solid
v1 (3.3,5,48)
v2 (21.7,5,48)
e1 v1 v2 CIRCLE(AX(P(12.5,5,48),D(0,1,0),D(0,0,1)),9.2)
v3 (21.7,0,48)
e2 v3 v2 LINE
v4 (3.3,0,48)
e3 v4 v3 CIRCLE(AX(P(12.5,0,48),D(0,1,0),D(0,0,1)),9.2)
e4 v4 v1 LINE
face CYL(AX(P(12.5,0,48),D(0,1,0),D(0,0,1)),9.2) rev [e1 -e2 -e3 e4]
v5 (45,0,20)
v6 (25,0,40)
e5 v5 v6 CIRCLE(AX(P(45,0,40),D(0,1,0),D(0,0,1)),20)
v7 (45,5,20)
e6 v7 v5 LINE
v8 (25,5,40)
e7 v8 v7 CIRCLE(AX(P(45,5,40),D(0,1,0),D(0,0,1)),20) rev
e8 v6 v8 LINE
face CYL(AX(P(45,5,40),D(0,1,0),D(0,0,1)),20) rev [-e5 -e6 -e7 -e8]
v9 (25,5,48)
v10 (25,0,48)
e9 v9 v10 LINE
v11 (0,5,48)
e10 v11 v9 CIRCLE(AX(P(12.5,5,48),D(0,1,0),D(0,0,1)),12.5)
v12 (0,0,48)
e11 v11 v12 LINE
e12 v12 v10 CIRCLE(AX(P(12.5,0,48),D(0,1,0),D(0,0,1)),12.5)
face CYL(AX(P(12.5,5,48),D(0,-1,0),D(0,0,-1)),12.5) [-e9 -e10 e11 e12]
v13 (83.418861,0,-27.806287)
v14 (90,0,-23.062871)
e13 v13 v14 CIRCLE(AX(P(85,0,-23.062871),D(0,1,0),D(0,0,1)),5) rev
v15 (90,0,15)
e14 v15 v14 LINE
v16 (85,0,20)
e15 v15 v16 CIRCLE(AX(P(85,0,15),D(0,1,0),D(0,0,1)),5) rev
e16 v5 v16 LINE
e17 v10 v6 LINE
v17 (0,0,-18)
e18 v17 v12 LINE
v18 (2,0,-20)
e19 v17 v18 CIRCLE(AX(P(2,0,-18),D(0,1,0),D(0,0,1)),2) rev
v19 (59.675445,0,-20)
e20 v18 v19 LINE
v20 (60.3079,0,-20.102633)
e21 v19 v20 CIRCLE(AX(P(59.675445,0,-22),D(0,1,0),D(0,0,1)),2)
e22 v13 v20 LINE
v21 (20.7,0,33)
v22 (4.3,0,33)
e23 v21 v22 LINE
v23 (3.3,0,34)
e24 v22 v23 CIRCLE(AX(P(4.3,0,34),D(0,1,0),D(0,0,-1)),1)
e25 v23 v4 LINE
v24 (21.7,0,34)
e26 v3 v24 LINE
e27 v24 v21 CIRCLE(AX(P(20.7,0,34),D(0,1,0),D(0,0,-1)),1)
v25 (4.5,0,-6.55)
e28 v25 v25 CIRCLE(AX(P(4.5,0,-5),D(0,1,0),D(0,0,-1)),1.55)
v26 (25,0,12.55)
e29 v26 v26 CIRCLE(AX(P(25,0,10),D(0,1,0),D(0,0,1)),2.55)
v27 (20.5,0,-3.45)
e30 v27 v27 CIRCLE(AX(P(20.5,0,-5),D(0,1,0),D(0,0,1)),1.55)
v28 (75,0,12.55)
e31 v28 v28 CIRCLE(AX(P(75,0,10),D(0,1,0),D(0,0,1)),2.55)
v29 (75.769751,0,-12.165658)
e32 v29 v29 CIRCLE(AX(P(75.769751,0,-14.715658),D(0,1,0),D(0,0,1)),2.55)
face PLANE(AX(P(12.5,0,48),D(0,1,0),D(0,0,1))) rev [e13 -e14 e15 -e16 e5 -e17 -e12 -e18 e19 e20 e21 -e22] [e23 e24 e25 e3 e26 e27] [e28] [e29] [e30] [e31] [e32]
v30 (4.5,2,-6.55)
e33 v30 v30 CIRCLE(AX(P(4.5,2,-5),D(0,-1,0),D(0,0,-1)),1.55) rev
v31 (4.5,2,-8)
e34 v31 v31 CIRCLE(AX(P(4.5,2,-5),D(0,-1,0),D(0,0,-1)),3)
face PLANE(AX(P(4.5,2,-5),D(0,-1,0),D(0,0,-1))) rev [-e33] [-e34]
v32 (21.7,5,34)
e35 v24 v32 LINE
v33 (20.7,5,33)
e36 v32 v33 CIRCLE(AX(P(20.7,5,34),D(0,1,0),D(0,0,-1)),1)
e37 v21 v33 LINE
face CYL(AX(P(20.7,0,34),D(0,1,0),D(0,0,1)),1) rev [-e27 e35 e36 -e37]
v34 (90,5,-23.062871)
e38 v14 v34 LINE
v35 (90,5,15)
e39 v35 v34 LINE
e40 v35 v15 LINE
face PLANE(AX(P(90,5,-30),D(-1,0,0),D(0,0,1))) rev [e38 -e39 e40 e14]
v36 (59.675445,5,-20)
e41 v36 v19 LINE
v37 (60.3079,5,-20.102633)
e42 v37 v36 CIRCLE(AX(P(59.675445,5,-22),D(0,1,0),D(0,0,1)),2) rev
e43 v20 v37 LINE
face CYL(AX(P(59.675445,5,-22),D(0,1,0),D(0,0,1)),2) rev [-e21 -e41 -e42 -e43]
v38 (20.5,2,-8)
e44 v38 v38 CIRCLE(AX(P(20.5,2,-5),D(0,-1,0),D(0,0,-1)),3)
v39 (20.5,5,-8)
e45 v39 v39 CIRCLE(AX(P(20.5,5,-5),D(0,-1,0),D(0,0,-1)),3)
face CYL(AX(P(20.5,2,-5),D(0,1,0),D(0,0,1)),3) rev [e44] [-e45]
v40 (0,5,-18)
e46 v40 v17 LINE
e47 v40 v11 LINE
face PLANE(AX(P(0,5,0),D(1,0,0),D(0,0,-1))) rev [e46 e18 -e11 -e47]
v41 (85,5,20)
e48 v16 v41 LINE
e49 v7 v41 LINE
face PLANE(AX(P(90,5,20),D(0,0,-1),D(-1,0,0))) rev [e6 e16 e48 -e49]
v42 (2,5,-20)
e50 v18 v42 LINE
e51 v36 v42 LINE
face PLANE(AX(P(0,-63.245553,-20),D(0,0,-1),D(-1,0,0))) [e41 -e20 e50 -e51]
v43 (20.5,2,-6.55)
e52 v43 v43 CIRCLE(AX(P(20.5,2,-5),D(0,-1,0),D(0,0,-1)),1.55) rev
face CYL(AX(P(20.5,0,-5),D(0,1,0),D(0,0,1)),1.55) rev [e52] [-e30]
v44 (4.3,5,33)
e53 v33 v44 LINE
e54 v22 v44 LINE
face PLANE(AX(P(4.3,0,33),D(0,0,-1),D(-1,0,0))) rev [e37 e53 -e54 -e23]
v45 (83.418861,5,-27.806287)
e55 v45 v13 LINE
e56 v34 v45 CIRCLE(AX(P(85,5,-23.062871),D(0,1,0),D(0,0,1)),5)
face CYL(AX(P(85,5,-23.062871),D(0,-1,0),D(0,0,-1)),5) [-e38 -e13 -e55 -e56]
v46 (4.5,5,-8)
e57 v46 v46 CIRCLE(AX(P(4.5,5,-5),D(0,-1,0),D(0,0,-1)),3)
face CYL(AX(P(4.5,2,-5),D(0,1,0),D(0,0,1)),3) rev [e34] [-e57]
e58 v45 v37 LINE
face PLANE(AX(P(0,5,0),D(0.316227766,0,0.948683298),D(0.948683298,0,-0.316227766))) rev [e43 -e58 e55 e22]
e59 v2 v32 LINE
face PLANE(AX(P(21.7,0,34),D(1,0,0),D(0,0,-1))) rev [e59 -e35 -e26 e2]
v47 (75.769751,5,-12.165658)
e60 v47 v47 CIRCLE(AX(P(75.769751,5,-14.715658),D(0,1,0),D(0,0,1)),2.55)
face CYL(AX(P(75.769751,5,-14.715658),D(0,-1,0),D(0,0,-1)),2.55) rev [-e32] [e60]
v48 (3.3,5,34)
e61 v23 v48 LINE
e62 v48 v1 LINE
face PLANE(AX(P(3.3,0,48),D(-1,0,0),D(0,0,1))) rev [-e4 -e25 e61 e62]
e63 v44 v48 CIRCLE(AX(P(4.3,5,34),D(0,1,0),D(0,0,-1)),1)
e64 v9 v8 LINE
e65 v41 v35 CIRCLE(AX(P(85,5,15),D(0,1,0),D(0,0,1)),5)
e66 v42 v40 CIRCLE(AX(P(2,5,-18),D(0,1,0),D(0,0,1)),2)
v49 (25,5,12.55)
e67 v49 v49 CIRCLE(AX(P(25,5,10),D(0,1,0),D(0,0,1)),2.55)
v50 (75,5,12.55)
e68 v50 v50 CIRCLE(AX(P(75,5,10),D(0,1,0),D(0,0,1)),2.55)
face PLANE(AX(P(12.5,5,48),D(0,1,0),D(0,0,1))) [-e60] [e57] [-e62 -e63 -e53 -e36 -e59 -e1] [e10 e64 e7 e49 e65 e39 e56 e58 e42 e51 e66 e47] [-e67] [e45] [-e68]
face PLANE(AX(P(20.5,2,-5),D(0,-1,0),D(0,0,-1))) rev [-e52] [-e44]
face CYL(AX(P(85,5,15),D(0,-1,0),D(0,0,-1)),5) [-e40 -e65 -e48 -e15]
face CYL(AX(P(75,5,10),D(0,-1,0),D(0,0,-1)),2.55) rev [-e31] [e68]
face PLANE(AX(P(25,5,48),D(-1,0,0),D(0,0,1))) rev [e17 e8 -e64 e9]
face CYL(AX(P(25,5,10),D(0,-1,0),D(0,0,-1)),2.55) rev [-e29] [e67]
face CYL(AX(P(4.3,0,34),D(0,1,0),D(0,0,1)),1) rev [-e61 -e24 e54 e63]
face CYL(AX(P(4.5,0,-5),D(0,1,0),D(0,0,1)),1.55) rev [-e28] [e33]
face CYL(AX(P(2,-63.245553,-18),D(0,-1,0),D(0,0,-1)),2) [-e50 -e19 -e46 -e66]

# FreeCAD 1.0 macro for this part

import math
import FreeCAD as App
import Part
import Sketcher

V = App.Vector


def edges_at(feature, points):
    """Names of the edges that pass closest to the given points."""
    edges = feature.Shape.Edges
    near = lambda p: min(range(len(edges)), key=lambda i: edges[i].distToShape(Part.Vertex(*p))[0])
    return sorted({f"Edge{near(p) + 1}" for p in points})


def add_polygon(sketch, points):
    """Adds a closed chain of lines whose ends are joined by coincident constraints."""
    first, n = sketch.GeometryCount, len(points)
    for a, b in zip(points, points[1:] + points[:1]):
        sketch.addGeometry(Part.LineSegment(App.Vector(*a, 0), App.Vector(*b, 0)), False)
    for i in range(n):
        sketch.addConstraint(Sketcher.Constraint("Coincident", first + i, 2, first + (i + 1) % n, 1))

doc = App.newDocument("Part")
params = doc.addObject("Spreadsheet::Sheet", "Params")
for row, (alias, value) in enumerate([
    ("sketch1_diameter", "15 mm"),
    ("sketch1_diameter2", "5.1 mm"),
    ("sketch1_radius", "12.5 mm"),
    ("sketch1_width", "65 mm"),
    ("sketch1_height", "48 mm"),
    ("pad1_length", "5 mm"),
    ("fillet_radius", "20 mm"),
    ("fillet2_radius", "5 mm"),
    ("sketch2_radius", "1 mm"),
    ("sketch2_radius2", "9.2 mm"),
    ("sketch2_height", "14 mm"),
    ("sketch3_width", "60 mm"),
    ("sketch3_height", "20 mm"),
    ("pad2_length", "5 mm"),
    ("sketch4_diameter", "3.1 mm"),
    ("fillet3_radius", "2 mm"),
    ("sketch5_diameter", "6 mm"),
    ("pocket3_length", "3 mm"),
], start=1):
    params.set(f"A{row}", alias)
    params.set(f"B{row}", "=" + value)
    params.setAlias(f"B{row}", alias)

body = doc.addObject("PartDesign::Body", "Body")

sketch1 = doc.addObject("Sketcher::SketchObject", "Sketch")
body.addObject(sketch1)
sketch1.AttachmentSupport = (doc.XZ_Plane, [""])
sketch1.MapMode = "FlatFace"
sketch1.addGeometry([
    Part.LineSegment(V(0, 0, 0), V(0, 48, 0)),
    Part.ArcOfCircle(Part.Circle(V(12.5, 48, 0), V(0, 0, 1), 12.5), math.radians(0), math.radians(180)),
    Part.LineSegment(V(25, 48, 0), V(25, 20, 0)),
    Part.LineSegment(V(25, 20, 0), V(90, 20, 0)),
    Part.LineSegment(V(90, 20, 0), V(90, -30, 0)),
    Part.LineSegment(V(90, -30, 0), V(0, 0, 0)),
    Part.Circle(V(12.5, 48, 0), V(0, 0, 1), 7.5),
    Part.Circle(V(25, 10, 0), V(0, 0, 1), 2.5),
    Part.Circle(V(75, 10, 0), V(0, 0, 1), 2.5),
    Part.Circle(V(75.8, -14.7, 0), V(0, 0, 1), 2.5),
], False)
sketch1.addConstraint([
    Sketcher.Constraint("Tangent", 0, 2, 1, 2),
    Sketcher.Constraint("Tangent", 1, 1, 2, 1),
    Sketcher.Constraint("Coincident", 2, 2, 3, 1),
    Sketcher.Constraint("Coincident", 3, 2, 4, 1),
    Sketcher.Constraint("Coincident", 4, 2, 5, 1),
    Sketcher.Constraint("Coincident", 5, 2, 0, 1),
    Sketcher.Constraint("Vertical", 0),
    Sketcher.Constraint("Vertical", 2),
    Sketcher.Constraint("Horizontal", 3),
    Sketcher.Constraint("Vertical", 4),
    Sketcher.Constraint("Coincident", 5, 2, -1, 1),
    Sketcher.Constraint("Coincident", 6, 3, 1, 3),
    Sketcher.Constraint("Equal", 7, 8),
    Sketcher.Constraint("Equal", 8, 9),
    Sketcher.Constraint("Horizontal", 7, 3, 8, 3),
    Sketcher.Constraint("Vertical", 7, 3, 1, 1),
    Sketcher.Constraint("Diameter", 6, 15.0),
    Sketcher.Constraint("Diameter", 7, 5.1),
    Sketcher.Constraint("Radius", 1, 12.5),
    Sketcher.Constraint("DistanceX", 3, 1, 3, 2, 65.0),
    Sketcher.Constraint("DistanceY", 0, 1, 0, 2, 48.0),
    Sketcher.Constraint("DistanceY", 2, 2, 2, 1, 28.0),
    Sketcher.Constraint("DistanceY", 4, 2, 4, 1, 50.0),
    Sketcher.Constraint("DistanceY", -1, 1, 7, 3, 10.0),
    Sketcher.Constraint("DistanceX", -1, 1, 8, 3, 75.0),
    Sketcher.Constraint("DistanceX", -1, 1, 9, 3, 75.769751),
    Sketcher.Constraint("DistanceY", 9, 3, -1, 1, 14.715658),
])
sketch1.setExpression("Constraints[16]", "Params.sketch1_diameter")
sketch1.setExpression("Constraints[17]", "Params.sketch1_diameter2")
sketch1.setExpression("Constraints[18]", "Params.sketch1_radius")
sketch1.setExpression("Constraints[19]", "Params.sketch1_width")
sketch1.setExpression("Constraints[20]", "Params.sketch1_height")
pad1 = doc.addObject("PartDesign::Pad", "Pad")
body.addObject(pad1)
pad1.Profile = sketch1
pad1.setExpression("Length", "Params.pad1_length")
pad1.Reversed = True
doc.recompute()

fillet = doc.addObject("PartDesign::Fillet", "Fillet")
body.addObject(fillet)
fillet.Base = (pad1, edges_at(pad1, [(25, 2.5, 20)]))
fillet.setExpression("Radius", "Params.fillet_radius")
doc.recompute()

fillet2 = doc.addObject("PartDesign::Fillet", "Fillet001")
body.addObject(fillet2)
fillet2.Base = (fillet, edges_at(fillet, [(90, 2.5, -30), (90, 2.5, 20)]))
fillet2.setExpression("Radius", "Params.fillet2_radius")

sketch2 = doc.addObject("Sketcher::SketchObject", "Sketch001")
body.addObject(sketch2)
sketch2.AttachmentSupport = (doc.XZ_Plane, [""])
sketch2.MapMode = "FlatFace"
sketch2.AttachmentOffset = App.Placement(V(0, 0, -5), App.Rotation())
sketch2.addGeometry([
    Part.LineSegment(V(3.3, 34, 0), V(3.3, 48, 0)),
    Part.ArcOfCircle(Part.Circle(V(12.5, 48, 0), V(0, 0, 1), 9.2), math.radians(0), math.radians(180)),
    Part.LineSegment(V(21.7, 48, 0), V(21.7, 34, 0)),
    Part.ArcOfCircle(Part.Circle(V(20.7, 34, 0), V(0, 0, 1), 1), math.radians(-90), math.radians(0)),
    Part.LineSegment(V(20.7, 33, 0), V(4.3, 33, 0)),
    Part.ArcOfCircle(Part.Circle(V(4.3, 34, 0), V(0, 0, 1), 1), math.radians(-180), math.radians(-90)),
], False)
sketch2.addConstraint([
    Sketcher.Constraint("Tangent", 0, 2, 1, 2),
    Sketcher.Constraint("Tangent", 1, 1, 2, 1),
    Sketcher.Constraint("Tangent", 2, 2, 3, 2),
    Sketcher.Constraint("Tangent", 3, 1, 4, 1),
    Sketcher.Constraint("Tangent", 4, 2, 5, 2),
    Sketcher.Constraint("Tangent", 5, 1, 0, 1),
    Sketcher.Constraint("Vertical", 0),
    Sketcher.Constraint("Vertical", 2),
    Sketcher.Constraint("Horizontal", 4),
    Sketcher.Constraint("Equal", 3, 5),
    Sketcher.Constraint("Radius", 3, 1.0),
    Sketcher.Constraint("Radius", 1, 9.2),
    Sketcher.Constraint("DistanceY", 0, 1, 0, 2, 14.0),
    Sketcher.Constraint("DistanceY", -1, 1, 1, 3, 48.0),
    Sketcher.Constraint("DistanceX", -1, 1, 1, 3, 12.5),
])
sketch2.setExpression("Constraints[10]", "Params.sketch2_radius")
sketch2.setExpression("Constraints[11]", "Params.sketch2_radius2")
sketch2.setExpression("Constraints[12]", "Params.sketch2_height")
pocket1 = doc.addObject("PartDesign::Pocket", "Pocket")
body.addObject(pocket1)
pocket1.Profile = sketch2
pocket1.Type = "ThroughAll"
pocket1.Reversed = True

sketch3 = doc.addObject("Sketcher::SketchObject", "Sketch002")
body.addObject(sketch3)
sketch3.AttachmentSupport = (doc.XZ_Plane, [""])
sketch3.MapMode = "FlatFace"
sketch3.AttachmentOffset = App.Placement(V(0, 0, -5), App.Rotation())
add_polygon(sketch3, [(0, -20), (0, 0), (60, -20)])
sketch3.addConstraint([
    Sketcher.Constraint("Vertical", 0),
    Sketcher.Constraint("Horizontal", 2),
    Sketcher.Constraint("Coincident", 0, 2, -1, 1),
    Sketcher.Constraint("DistanceX", 2, 2, 2, 1, 60.0),
    Sketcher.Constraint("DistanceY", 0, 1, 0, 2, 20.0),
])
sketch3.setExpression("Constraints[6]", "Params.sketch3_width")
sketch3.setExpression("Constraints[7]", "Params.sketch3_height")
pad2 = doc.addObject("PartDesign::Pad", "Pad001")
body.addObject(pad2)
pad2.Profile = sketch3
pad2.setExpression("Length", "Params.pad2_length")

sketch4 = doc.addObject("Sketcher::SketchObject", "Sketch003")
body.addObject(sketch4)
sketch4.AttachmentSupport = (doc.XZ_Plane, [""])
sketch4.MapMode = "FlatFace"
sketch4.AttachmentOffset = App.Placement(V(0, 0, -5), App.Rotation())
sketch4.addGeometry([
    Part.Circle(V(20.5, -5, 0), V(0, 0, 1), 1.6),
    Part.Circle(V(4.5, -5, 0), V(0, 0, 1), 1.6),
], False)
sketch4.addConstraint([
    Sketcher.Constraint("Equal", 0, 1),
    Sketcher.Constraint("Horizontal", 0, 3, 1, 3),
    Sketcher.Constraint("Diameter", 0, 3.1),
    Sketcher.Constraint("DistanceY", 0, 3, -1, 1, 5.0),
    Sketcher.Constraint("DistanceX", 1, 3, 0, 3, 16.0),
    Sketcher.Constraint("DistanceX", -1, 1, 0, 3, 20.5),
])
sketch4.setExpression("Constraints[2]", "Params.sketch4_diameter")
pocket2 = doc.addObject("PartDesign::Pocket", "Pocket001")
body.addObject(pocket2)
pocket2.Profile = sketch4
pocket2.Type = "ThroughAll"
pocket2.Reversed = True
doc.recompute()

fillet3 = doc.addObject("PartDesign::Fillet", "Fillet002")
body.addObject(fillet3)
fillet3.Base = (pocket2, edges_at(pocket2, [(60, 2.5, -20), (0, 2.5, -20)]))
fillet3.setExpression("Radius", "Params.fillet3_radius")

sketch5 = doc.addObject("Sketcher::SketchObject", "Sketch004")
body.addObject(sketch5)
sketch5.AttachmentSupport = (doc.XZ_Plane, [""])
sketch5.MapMode = "FlatFace"
sketch5.AttachmentOffset = App.Placement(V(0, 0, -5), App.Rotation())
sketch5.addGeometry([
    Part.Circle(V(4.5, -5, 0), V(0, 0, 1), 3),
    Part.Circle(V(20.5, -5, 0), V(0, 0, 1), 3),
], False)
sketch5.addConstraint([
    Sketcher.Constraint("Equal", 0, 1),
    Sketcher.Constraint("Horizontal", 0, 3, 1, 3),
    Sketcher.Constraint("Diameter", 0, 6.0),
    Sketcher.Constraint("DistanceY", 0, 3, -1, 1, 5.0),
    Sketcher.Constraint("DistanceX", 0, 3, 1, 3, 16.0),
    Sketcher.Constraint("DistanceX", -1, 1, 0, 3, 4.5),
])
sketch5.setExpression("Constraints[2]", "Params.sketch5_diameter")
pocket3 = doc.addObject("PartDesign::Pocket", "Pocket002")
body.addObject(pocket3)
pocket3.Profile = sketch5
pocket3.setExpression("Length", "Params.pocket3_length")
pocket3.Reversed = True

doc.recompute()
